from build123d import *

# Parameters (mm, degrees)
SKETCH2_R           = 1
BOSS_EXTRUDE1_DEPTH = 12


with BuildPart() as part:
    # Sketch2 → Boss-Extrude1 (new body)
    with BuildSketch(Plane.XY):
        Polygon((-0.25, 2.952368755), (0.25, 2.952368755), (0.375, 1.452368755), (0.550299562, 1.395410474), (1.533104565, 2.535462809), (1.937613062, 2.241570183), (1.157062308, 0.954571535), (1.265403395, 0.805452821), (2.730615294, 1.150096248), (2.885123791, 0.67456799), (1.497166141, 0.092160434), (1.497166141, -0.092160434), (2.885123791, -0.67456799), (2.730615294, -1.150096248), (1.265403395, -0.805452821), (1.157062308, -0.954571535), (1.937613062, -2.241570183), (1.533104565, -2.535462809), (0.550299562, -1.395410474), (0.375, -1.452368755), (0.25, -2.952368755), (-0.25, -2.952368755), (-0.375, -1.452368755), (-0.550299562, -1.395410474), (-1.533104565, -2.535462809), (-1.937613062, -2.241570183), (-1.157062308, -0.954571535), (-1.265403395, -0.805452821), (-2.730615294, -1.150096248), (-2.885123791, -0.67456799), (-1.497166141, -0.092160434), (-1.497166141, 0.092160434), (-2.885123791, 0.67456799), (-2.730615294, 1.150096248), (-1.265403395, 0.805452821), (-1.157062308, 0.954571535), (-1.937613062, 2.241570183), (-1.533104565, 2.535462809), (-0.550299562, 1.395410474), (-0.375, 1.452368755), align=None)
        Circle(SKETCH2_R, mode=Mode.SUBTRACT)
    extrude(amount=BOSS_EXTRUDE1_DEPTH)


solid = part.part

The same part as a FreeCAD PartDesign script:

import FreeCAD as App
import Part
import Sketcher

V = App.Vector
Q = App.Units.Quantity


def add_polygon(sketch, points):
    """Adds a closed chain of lines whose ends are joined by coincident constraints."""
    first, n = sketch.GeometryCount, len(points)
    for a, b in zip(points, points[1:] + points[:1]):
        sketch.addGeometry(Part.LineSegment(App.Vector(*a, 0), App.Vector(*b, 0)), False)
    for i in range(n):
        sketch.addConstraint(Sketcher.Constraint("Coincident", first + i, 2, first + (i + 1) % n, 1))

doc = App.newDocument("Part")
body = doc.addObject("PartDesign::Body", "Body")

sketch1 = body.newObject("Sketcher::SketchObject", "Sketch")
sketch1.AttachmentSupport = (doc.getObject("XY_Plane"), [""])
sketch1.MapMode = "FlatFace"
add_polygon(sketch1, [(0.25, 2.952369), (-0.25, 2.952369), (-0.375, 1.452369), (-0.5503, 1.39541), (-1.533105, 2.535463), (-1.937613, 2.24157), (-1.157062, 0.954572), (-1.265403, 0.805453), (-2.730615, 1.150096), (-2.885124, 0.674568), (-1.497166, 0.09216), (-1.497166, -0.09216), (-2.885124, -0.674568), (-2.730615, -1.150096), (-1.265403, -0.805453), (-1.157062, -0.954572), (-1.937613, -2.24157), (-1.533105, -2.535463), (-0.5503, -1.39541), (-0.375, -1.452369), (-0.25, -2.952369), (0.25, -2.952369), (0.375, -1.452369), (0.5503, -1.39541), (1.533105, -2.535463), (1.937613, -2.24157), (1.157062, -0.954572), (1.265403, -0.805453), (2.730615, -1.150096), (2.885124, -0.674568), (1.497166, -0.09216), (1.497166, 0.09216), (2.885124, 0.674568), (2.730615, 1.150096), (1.265403, 0.805453), (1.157062, 0.954572), (1.937613, 2.24157), (1.533105, 2.535463), (0.5503, 1.39541), (0.375, 1.452369)])
sketch1.addGeometry(Part.Circle(V(0, 0, 0), V(0, 0, 1), 1), False)
sketch1.addConstraint(Sketcher.Constraint("Horizontal", 0))
sketch1.addConstraint(Sketcher.Constraint("Vertical", 10))
sketch1.addConstraint(Sketcher.Constraint("Horizontal", 20))
sketch1.addConstraint(Sketcher.Constraint("Vertical", 30))
sketch1.addConstraint(Sketcher.Constraint("Coincident", 40, 3, -1, 1))
sketch1.addConstraint(Sketcher.Constraint("Symmetric", 0, 2, 20, 2, -1, 1))
sketch1.addConstraint(Sketcher.Constraint("Symmetric", 1, 2, 21, 2, -1, 1))
sketch1.addConstraint(Sketcher.Constraint("Symmetric", 2, 2, 22, 2, -1, 1))
sketch1.addConstraint(Sketcher.Constraint("Symmetric", 3, 2, 23, 2, -1, 1))
sketch1.addConstraint(Sketcher.Constraint("Symmetric", 4, 2, 24, 2, -1, 1))
sketch1.addConstraint(Sketcher.Constraint("Symmetric", 5, 2, 25, 2, -1, 1))
sketch1.addConstraint(Sketcher.Constraint("Symmetric", 6, 2, 26, 2, -1, 1))
sketch1.addConstraint(Sketcher.Constraint("Symmetric", 7, 2, 27, 2, -1, 1))
sketch1.addConstraint(Sketcher.Constraint("Symmetric", 8, 2, 28, 2, -1, 1))
sketch1.addConstraint(Sketcher.Constraint("Symmetric", 9, 2, 29, 2, -1, 1))
sketch1.addConstraint(Sketcher.Constraint("Symmetric", 11, 2, 31, 2, -1, 1))
sketch1.addConstraint(Sketcher.Constraint("Symmetric", 12, 2, 32, 2, -1, 1))
sketch1.addConstraint(Sketcher.Constraint("Symmetric", 13, 2, 33, 2, -1, 1))
sketch1.addConstraint(Sketcher.Constraint("Symmetric", 14, 2, 34, 2, -1, 1))
sketch1.addConstraint(Sketcher.Constraint("Symmetric", 15, 2, 35, 2, -1, 1))
sketch1.addConstraint(Sketcher.Constraint("Symmetric", 16, 2, 36, 2, -1, 1))
sketch1.addConstraint(Sketcher.Constraint("Symmetric", 17, 2, 37, 2, -1, 1))
sketch1.addConstraint(Sketcher.Constraint("Symmetric", 18, 2, 38, 2, -1, 1))
sketch1.addConstraint(Sketcher.Constraint("Symmetric", 18, 2, 21, 2, -2))
sketch1.addConstraint(Sketcher.Constraint("Symmetric", 17, 2, 22, 2, -2))
sketch1.addConstraint(Sketcher.Constraint("Symmetric", 16, 2, 23, 2, -2))
sketch1.addConstraint(Sketcher.Constraint("Symmetric", 15, 2, 24, 2, -2))
sketch1.addConstraint(Sketcher.Constraint("Symmetric", 14, 2, 25, 2, -2))
sketch1.addConstraint(Sketcher.Constraint("Symmetric", 13, 2, 26, 2, -2))
sketch1.addConstraint(Sketcher.Constraint("Symmetric", 12, 2, 27, 2, -2))
sketch1.addConstraint(Sketcher.Constraint("Symmetric", 11, 2, 28, 2, -2))
sketch1.addConstraint(Sketcher.Constraint("Perpendicular", 2, 12))
sketch1.addConstraint(Sketcher.Constraint("Perpendicular", 4, 14))
sketch1.addConstraint(Sketcher.Constraint("Parallel", 11, 31))
sketch1.addConstraint(Sketcher.Constraint("Parallel", 19, 39))
sketch1.addConstraint(Sketcher.Constraint("Horizontal", 10, 2, 29, 2))
sketch1.addConstraint(Sketcher.Constraint("Vertical", 0, 2, 19, 2))
sketch1.addConstraint(Sketcher.Constraint("Equal", 1, 3))
sketch1.addConstraint(Sketcher.Constraint("Equal", 3, 5))
sketch1.addConstraint(Sketcher.Constraint("Equal", 2, 6))
sketch1.addConstraint(Sketcher.Constraint("Equal", 5, 7))
sketch1.addConstraint(Sketcher.Constraint("Equal", 4, 8))
sketch1.addConstraint(Sketcher.Constraint("Equal", 7, 9))
sketch1.addConstraint(Sketcher.Constraint("Diameter", 40, Q("2 mm")))
sketch1.addConstraint(Sketcher.Constraint("Angle", 2, Q("-162 deg")))
sketch1.addConstraint(Sketcher.Constraint("Angle", 4, Q("-144 deg")))
sketch1.addConstraint(Sketcher.Constraint("DistanceX", 0, 2, 0, 1, Q("0.5 mm")))
sketch1.addConstraint(Sketcher.Constraint("Distance", 4, Q("0.5 mm")))
sketch1.addConstraint(Sketcher.Constraint("DistanceY", 1, 2, 0, 2, Q("1.5 mm")))
sketch1.addConstraint(Sketcher.Constraint("DistanceX", 18, 2, 21, 2, Q("0.75 mm")))
sketch1.addConstraint(Sketcher.Constraint("DistanceY", 5, 2, 4, 2, Q("1.286999 mm")))
sketch1.addConstraint(Sketcher.Constraint("DistanceY", 10, 2, 10, 1, Q("0.184321 mm")))
sketch1.addConstraint(Sketcher.Constraint("DistanceX", 2, 2, -1, 1, Q("0.5503 mm")))
sketch1.addConstraint(Sketcher.Constraint("DistanceY", 1, 2, 4, 2, Q("0.789201 mm")))
sketch1.addConstraint(Sketcher.Constraint("DistanceY", -1, 1, 0, 2, Q("2.952369 mm")))
sketch1.addConstraint(Sketcher.Constraint("DistanceX", 7, 2, 6, 2, Q("1.465212 mm")))
pad1 = body.newObject("PartDesign::Pad", "Pad")
pad1.Profile = sketch1
pad1.Length = 12

doc.recompute()
